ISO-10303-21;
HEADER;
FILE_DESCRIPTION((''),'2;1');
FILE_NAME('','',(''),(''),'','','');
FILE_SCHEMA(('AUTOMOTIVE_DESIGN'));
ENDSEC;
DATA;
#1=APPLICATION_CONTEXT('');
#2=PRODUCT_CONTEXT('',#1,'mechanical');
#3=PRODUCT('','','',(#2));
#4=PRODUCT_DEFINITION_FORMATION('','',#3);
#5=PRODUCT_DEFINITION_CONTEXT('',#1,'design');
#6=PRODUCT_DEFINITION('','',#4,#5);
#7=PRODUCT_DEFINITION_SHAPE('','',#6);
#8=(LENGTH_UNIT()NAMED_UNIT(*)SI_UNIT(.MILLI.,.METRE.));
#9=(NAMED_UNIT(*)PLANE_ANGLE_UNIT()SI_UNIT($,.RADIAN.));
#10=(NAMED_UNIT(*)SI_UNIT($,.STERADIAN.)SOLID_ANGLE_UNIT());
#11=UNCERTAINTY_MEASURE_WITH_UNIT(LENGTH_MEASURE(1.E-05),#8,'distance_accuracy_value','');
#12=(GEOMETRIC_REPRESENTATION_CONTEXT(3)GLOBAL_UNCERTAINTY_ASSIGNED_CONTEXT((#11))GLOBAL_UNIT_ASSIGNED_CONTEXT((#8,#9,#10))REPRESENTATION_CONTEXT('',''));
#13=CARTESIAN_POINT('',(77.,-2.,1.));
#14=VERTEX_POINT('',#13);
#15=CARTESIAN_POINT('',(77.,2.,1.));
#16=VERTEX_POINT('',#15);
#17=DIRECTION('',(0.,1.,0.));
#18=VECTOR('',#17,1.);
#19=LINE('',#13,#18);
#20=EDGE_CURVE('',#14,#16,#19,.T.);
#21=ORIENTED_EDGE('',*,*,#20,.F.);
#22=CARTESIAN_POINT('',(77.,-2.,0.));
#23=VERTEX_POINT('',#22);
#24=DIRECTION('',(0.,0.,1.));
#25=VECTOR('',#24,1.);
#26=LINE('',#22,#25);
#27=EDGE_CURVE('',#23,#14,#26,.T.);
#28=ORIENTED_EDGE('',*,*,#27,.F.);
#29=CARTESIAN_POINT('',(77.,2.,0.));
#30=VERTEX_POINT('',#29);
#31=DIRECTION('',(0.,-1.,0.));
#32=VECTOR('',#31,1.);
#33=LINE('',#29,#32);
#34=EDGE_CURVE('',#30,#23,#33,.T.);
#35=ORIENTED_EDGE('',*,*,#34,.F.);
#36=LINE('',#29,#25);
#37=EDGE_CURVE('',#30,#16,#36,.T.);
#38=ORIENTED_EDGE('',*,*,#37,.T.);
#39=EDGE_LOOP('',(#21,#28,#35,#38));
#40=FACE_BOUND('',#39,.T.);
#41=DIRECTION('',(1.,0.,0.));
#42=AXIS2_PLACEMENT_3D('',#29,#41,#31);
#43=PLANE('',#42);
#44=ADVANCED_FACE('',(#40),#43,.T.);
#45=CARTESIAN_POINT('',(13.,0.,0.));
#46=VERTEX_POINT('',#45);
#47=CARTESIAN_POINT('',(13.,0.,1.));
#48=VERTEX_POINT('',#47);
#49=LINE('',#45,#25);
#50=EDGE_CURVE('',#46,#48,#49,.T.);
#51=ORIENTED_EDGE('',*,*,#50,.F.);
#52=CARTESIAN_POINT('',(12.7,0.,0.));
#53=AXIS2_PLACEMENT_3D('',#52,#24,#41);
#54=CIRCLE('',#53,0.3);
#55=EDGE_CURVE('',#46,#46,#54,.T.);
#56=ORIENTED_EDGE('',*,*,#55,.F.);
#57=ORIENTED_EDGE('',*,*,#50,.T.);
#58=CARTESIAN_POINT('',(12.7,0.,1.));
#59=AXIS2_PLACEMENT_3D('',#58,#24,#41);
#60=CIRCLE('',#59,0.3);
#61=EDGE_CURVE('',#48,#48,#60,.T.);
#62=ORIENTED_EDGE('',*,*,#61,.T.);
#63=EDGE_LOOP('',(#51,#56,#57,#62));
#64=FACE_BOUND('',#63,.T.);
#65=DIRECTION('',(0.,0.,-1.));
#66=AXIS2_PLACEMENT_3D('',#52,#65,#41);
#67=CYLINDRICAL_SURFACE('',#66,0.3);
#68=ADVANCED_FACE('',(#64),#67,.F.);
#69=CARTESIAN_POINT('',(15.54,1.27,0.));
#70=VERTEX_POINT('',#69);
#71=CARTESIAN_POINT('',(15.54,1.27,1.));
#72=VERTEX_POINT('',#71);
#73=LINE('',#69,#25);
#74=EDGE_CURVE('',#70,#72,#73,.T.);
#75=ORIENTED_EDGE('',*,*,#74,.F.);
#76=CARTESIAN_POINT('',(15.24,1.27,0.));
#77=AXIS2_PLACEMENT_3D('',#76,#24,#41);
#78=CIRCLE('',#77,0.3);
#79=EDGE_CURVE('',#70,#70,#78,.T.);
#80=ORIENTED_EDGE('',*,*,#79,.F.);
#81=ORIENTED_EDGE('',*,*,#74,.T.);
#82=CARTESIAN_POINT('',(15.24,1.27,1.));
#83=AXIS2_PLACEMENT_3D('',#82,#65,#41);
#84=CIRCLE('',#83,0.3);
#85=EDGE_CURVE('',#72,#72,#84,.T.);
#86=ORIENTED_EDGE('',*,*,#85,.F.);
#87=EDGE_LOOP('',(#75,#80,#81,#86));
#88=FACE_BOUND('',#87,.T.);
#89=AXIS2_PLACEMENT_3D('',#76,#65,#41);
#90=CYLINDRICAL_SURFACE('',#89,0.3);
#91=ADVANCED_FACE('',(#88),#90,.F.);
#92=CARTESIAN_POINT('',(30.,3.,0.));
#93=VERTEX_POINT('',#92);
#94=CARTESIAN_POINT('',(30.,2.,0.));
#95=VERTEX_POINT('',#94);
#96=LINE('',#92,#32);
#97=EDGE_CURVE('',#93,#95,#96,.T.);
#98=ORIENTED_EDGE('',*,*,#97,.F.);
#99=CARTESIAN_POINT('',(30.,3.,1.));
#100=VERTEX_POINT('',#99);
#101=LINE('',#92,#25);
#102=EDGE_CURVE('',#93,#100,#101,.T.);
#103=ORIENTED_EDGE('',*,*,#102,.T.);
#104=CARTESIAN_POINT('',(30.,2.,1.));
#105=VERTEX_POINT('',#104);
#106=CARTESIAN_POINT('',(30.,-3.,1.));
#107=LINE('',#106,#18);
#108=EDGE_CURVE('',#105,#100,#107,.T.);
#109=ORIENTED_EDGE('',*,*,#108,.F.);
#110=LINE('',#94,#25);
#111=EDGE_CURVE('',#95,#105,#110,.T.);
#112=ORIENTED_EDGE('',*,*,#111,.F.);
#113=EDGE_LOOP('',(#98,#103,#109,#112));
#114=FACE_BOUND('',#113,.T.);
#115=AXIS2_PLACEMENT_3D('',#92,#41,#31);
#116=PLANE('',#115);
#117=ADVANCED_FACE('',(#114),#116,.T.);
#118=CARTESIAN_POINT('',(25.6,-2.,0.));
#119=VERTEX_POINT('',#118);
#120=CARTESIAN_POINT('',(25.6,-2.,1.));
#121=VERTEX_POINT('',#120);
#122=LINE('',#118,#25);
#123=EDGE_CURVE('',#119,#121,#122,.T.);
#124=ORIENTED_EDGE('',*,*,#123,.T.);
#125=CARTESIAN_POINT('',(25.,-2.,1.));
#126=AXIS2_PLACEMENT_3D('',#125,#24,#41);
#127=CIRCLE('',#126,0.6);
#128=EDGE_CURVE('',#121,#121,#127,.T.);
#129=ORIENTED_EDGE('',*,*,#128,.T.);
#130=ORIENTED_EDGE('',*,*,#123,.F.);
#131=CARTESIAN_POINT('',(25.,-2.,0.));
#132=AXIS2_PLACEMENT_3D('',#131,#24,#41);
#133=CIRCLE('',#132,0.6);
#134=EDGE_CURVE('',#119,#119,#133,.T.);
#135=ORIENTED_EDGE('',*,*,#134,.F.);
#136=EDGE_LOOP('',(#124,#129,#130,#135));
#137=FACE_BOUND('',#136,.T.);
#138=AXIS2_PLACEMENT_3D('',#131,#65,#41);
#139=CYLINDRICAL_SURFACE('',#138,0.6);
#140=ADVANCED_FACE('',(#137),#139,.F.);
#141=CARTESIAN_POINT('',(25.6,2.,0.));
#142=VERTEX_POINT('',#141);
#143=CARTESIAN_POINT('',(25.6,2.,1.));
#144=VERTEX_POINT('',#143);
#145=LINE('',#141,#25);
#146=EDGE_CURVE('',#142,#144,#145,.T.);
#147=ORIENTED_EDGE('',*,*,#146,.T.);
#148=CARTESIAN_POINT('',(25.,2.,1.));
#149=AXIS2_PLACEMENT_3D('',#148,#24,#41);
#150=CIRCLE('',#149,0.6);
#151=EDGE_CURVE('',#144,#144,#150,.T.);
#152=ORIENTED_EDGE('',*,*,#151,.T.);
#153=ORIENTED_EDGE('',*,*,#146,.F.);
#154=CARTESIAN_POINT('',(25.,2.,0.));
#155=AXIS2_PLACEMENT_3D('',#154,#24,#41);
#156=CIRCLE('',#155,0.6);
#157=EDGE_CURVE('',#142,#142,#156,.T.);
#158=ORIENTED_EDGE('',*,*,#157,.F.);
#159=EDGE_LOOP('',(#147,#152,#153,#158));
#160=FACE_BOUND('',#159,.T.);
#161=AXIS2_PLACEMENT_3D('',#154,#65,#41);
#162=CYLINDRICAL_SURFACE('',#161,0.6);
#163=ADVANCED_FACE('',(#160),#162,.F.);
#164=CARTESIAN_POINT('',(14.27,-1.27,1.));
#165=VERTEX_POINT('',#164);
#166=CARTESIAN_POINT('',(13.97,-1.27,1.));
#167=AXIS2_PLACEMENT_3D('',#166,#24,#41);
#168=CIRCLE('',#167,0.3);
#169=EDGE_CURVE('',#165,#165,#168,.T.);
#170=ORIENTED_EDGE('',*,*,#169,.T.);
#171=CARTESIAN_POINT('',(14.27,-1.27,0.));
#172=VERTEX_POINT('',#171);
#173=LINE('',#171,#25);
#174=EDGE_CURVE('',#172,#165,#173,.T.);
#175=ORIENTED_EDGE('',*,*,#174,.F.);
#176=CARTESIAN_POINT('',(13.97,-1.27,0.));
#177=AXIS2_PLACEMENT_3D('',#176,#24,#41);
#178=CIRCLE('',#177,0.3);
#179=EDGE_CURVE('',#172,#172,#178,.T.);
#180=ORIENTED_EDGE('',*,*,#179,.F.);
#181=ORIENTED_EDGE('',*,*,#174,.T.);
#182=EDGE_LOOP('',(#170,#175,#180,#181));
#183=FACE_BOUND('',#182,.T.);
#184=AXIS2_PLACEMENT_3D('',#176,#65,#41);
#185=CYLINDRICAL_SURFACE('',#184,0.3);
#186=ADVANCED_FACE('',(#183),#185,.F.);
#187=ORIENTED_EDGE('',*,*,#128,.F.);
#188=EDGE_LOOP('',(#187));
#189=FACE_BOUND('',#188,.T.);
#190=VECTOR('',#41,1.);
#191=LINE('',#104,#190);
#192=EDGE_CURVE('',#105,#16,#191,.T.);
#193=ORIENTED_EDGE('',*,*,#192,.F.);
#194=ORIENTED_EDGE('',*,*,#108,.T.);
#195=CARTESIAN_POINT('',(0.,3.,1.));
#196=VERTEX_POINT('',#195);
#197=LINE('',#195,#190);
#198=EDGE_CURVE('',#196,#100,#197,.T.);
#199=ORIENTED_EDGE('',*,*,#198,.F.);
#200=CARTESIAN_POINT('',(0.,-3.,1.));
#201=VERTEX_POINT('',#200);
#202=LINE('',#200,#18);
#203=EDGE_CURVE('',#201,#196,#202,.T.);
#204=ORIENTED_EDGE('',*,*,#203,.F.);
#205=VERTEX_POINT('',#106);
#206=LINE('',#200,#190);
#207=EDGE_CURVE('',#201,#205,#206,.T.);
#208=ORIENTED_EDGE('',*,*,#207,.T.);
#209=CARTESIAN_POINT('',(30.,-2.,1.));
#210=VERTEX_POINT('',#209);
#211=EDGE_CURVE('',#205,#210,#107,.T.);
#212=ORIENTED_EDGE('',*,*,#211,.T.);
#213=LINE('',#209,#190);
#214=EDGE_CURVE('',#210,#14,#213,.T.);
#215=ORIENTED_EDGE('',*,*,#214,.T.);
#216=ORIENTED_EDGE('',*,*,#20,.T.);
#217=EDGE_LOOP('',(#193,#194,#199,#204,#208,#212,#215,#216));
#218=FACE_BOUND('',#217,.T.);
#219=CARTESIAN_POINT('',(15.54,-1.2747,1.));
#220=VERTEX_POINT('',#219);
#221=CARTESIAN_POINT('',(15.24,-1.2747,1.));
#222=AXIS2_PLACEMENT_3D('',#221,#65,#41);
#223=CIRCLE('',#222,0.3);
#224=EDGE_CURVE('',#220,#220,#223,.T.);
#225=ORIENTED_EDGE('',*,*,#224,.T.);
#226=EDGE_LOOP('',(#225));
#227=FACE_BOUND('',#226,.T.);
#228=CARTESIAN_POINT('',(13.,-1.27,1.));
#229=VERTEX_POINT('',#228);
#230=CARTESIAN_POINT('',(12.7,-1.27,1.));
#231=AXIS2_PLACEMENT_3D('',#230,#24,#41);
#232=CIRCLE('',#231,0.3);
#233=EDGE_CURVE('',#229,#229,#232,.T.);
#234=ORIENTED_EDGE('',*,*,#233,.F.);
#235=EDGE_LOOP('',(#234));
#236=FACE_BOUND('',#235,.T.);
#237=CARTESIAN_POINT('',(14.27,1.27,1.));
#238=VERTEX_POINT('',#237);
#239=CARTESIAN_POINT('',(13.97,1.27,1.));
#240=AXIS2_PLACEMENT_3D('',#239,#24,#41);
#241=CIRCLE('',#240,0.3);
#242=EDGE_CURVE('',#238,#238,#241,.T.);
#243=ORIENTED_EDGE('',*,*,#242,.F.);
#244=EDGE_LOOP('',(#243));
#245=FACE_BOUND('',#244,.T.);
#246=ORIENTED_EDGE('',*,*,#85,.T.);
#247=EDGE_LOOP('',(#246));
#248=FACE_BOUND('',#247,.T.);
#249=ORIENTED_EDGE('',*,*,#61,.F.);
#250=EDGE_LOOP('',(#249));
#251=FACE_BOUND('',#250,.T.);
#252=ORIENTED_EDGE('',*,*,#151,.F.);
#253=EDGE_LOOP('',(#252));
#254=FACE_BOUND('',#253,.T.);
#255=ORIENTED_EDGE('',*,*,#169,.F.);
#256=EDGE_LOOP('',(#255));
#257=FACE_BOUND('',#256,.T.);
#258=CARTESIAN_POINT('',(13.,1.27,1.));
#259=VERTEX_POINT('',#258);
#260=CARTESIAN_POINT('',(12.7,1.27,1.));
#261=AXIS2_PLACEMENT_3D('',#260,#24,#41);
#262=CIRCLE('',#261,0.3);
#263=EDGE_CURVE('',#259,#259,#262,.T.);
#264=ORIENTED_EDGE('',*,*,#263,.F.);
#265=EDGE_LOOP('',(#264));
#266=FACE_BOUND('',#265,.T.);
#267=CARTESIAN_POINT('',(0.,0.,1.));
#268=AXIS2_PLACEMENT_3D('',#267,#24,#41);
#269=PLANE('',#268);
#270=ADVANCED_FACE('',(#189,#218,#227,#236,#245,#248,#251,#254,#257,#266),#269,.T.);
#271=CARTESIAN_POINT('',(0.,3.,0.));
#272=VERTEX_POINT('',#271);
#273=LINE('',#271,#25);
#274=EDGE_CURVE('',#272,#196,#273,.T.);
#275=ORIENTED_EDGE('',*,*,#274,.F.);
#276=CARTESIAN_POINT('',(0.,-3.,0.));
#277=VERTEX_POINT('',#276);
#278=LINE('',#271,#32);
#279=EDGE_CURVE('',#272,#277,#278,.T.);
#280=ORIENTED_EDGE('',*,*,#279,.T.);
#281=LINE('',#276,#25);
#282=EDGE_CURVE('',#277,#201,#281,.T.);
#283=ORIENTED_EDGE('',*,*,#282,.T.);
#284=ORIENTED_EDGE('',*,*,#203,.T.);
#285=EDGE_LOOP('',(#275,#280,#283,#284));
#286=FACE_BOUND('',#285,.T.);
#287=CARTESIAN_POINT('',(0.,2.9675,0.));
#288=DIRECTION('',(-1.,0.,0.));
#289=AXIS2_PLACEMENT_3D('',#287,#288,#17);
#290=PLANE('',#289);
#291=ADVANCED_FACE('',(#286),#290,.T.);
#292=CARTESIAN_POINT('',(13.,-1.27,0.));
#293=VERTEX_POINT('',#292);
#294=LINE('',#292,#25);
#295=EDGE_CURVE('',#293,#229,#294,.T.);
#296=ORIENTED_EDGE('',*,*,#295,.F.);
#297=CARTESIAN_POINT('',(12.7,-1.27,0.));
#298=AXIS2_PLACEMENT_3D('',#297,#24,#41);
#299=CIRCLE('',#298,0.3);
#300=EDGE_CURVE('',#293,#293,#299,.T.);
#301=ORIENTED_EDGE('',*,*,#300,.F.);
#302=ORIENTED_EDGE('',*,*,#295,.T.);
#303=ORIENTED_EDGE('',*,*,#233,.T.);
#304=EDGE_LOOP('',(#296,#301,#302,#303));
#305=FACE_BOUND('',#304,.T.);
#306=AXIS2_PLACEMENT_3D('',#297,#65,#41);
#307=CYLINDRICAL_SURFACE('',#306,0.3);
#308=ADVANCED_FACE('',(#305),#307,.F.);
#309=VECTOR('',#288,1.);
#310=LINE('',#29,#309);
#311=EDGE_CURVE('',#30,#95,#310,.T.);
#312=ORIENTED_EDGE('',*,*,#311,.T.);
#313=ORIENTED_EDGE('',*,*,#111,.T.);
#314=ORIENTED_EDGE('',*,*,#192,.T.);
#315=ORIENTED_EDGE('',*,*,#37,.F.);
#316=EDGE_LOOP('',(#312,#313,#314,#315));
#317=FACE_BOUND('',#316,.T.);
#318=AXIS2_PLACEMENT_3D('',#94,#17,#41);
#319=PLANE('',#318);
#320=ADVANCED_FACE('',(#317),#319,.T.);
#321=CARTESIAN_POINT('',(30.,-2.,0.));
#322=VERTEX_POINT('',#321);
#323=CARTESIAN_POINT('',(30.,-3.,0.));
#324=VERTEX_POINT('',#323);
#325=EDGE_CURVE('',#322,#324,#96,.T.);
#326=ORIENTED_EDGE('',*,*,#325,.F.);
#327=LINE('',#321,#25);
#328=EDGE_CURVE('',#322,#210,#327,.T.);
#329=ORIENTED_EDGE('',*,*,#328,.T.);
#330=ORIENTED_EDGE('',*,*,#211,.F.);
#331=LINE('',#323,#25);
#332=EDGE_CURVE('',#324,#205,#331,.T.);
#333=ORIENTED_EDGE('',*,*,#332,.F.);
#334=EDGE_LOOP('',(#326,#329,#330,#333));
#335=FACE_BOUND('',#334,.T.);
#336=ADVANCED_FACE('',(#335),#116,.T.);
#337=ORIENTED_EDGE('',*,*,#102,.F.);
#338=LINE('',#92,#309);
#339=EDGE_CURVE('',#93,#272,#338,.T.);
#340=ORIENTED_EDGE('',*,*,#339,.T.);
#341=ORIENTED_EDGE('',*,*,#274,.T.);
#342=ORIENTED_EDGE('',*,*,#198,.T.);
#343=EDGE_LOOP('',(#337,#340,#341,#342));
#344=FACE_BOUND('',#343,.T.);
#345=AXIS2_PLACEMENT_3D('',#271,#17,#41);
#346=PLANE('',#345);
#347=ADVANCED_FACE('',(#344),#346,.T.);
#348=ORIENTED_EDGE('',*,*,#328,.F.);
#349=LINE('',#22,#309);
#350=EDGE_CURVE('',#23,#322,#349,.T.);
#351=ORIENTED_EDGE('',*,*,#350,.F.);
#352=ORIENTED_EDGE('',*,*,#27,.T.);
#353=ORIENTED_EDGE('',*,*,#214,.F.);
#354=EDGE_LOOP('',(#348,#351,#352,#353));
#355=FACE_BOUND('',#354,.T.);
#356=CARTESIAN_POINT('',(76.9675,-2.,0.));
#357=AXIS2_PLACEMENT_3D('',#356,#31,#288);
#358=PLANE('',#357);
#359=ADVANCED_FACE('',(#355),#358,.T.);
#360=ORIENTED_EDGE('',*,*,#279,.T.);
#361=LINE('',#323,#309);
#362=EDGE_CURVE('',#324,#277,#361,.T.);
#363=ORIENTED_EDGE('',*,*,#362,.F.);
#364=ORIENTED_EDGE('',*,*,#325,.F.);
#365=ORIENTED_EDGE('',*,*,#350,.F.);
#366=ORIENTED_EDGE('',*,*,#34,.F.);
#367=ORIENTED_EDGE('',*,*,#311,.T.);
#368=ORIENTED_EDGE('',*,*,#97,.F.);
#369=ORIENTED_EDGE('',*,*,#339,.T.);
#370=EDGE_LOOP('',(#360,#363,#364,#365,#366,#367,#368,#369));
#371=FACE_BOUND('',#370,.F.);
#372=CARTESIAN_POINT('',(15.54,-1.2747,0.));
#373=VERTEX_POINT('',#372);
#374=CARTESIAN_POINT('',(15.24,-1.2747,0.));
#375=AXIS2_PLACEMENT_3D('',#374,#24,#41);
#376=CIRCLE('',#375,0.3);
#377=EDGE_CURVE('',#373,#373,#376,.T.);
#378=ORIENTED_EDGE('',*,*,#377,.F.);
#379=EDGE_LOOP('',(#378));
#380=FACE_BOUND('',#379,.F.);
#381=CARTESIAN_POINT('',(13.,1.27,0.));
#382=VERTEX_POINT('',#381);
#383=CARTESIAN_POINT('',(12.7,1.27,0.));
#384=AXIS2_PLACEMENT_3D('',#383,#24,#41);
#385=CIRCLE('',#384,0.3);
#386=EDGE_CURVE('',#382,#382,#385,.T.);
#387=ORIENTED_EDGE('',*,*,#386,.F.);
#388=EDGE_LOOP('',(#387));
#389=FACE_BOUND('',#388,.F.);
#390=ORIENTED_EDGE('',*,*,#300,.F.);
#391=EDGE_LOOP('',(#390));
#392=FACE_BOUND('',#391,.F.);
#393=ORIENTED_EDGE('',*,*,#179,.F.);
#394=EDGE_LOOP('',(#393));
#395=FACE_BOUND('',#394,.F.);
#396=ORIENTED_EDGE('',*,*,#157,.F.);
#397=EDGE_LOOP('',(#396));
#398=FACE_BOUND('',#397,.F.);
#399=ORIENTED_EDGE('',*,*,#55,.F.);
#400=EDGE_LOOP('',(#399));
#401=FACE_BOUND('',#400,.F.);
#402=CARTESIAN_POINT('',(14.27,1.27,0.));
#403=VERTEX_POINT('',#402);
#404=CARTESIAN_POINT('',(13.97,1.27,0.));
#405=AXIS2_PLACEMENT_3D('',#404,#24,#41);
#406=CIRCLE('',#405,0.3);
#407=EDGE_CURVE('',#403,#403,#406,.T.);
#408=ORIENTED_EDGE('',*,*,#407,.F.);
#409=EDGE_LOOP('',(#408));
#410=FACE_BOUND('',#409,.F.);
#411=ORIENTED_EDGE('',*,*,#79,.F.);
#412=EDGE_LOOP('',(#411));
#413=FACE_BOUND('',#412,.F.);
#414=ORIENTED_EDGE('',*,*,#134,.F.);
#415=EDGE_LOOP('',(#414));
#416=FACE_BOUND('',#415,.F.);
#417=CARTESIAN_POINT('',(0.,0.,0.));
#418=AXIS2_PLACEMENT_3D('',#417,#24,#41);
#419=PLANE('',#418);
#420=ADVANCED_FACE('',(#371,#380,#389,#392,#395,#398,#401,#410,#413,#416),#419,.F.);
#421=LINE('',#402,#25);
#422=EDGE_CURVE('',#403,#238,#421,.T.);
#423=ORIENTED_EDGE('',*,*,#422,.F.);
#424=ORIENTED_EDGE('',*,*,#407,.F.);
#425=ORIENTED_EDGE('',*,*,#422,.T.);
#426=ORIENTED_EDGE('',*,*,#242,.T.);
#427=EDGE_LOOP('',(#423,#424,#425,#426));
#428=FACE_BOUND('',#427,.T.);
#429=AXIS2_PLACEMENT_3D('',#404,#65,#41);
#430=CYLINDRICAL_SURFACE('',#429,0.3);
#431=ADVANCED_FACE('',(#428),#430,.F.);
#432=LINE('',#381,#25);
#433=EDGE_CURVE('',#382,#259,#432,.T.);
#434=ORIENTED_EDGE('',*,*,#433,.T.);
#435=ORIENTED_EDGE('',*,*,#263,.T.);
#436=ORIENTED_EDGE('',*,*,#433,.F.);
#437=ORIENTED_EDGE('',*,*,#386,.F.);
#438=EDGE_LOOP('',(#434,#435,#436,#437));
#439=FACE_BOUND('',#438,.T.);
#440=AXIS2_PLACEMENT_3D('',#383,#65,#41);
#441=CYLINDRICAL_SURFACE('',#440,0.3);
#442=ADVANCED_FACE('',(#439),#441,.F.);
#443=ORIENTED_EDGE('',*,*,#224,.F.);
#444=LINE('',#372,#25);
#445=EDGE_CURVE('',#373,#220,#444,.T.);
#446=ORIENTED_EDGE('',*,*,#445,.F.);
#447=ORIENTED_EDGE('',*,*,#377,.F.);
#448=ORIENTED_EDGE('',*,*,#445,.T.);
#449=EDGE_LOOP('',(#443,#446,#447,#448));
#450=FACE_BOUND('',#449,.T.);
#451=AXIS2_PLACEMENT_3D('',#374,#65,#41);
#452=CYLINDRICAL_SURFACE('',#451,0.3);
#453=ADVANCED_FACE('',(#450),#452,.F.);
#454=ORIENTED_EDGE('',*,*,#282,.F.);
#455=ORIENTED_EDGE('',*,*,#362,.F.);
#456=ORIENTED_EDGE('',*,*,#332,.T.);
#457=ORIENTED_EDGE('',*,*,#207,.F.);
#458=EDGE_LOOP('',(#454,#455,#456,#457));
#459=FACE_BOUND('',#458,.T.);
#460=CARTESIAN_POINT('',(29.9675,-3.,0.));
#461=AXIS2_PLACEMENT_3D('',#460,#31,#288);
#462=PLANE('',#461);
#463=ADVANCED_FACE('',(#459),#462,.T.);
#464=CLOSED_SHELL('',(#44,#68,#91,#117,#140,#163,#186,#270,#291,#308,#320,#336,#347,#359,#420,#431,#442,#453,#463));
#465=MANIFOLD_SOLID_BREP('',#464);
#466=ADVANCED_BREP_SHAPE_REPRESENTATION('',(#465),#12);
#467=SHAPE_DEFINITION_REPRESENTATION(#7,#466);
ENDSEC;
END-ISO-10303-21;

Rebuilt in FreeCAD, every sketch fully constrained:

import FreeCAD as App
import Part
import Sketcher

doc = App.newDocument("Part")
body = doc.addObject("PartDesign::Body", "Body")

# Sketch on XY plane
sketch1 = doc.addObject("Sketcher::SketchObject", "Sketch")
body.addObject(sketch1)
sketch1.AttachmentSupport = (doc.XY_Plane, [""])
sketch1.MapMode = "FlatFace"
sketch1.addGeometry([
    Part.LineSegment(App.Vector(0, 3, 0), App.Vector(0, -3, 0)),  # 0
    Part.LineSegment(App.Vector(0, -3, 0), App.Vector(30, -3, 0)),  # 1
    Part.LineSegment(App.Vector(30, -3, 0), App.Vector(30, 3, 0)),  # 2
    Part.LineSegment(App.Vector(30, 3, 0), App.Vector(0, 3, 0)),  # 3
    Part.Circle(App.Vector(25, 2, 0), App.Vector(0, 0, 1), 0.6),  # 4
    Part.Circle(App.Vector(25, -2, 0), App.Vector(0, 0, 1), 0.6),  # 5
    Part.Circle(App.Vector(12.7, -1.27, 0), App.Vector(0, 0, 1), 0.3),  # 6
    Part.Circle(App.Vector(13.97, -1.27, 0), App.Vector(0, 0, 1), 0.3),  # 7
    Part.Circle(App.Vector(12.7, 0, 0), App.Vector(0, 0, 1), 0.3),  # 8
    Part.Circle(App.Vector(12.7, 1.27, 0), App.Vector(0, 0, 1), 0.3),  # 9
    Part.Circle(App.Vector(13.97, 1.27, 0), App.Vector(0, 0, 1), 0.3),  # 10
], False)
sketch1.addConstraint([
    Sketcher.Constraint("Coincident", 0, 2, 1, 1),
    Sketcher.Constraint("Coincident", 1, 2, 2, 1),
    Sketcher.Constraint("Coincident", 2, 2, 3, 1),
    Sketcher.Constraint("Coincident", 3, 2, 0, 1),
    Sketcher.Constraint("Vertical", 0),
    Sketcher.Constraint("Horizontal", 1),
    Sketcher.Constraint("Vertical", 2),
    Sketcher.Constraint("Horizontal", 3),
    Sketcher.Constraint("Equal", 4, 5),
    Sketcher.Constraint("Equal", 6, 7),
    Sketcher.Constraint("Equal", 7, 8),
    Sketcher.Constraint("Equal", 8, 9),
    Sketcher.Constraint("Equal", 9, 10),
    Sketcher.Constraint("Symmetric", 0, 2, 3, 2, -1, 1),
    Sketcher.Constraint("Symmetric", 4, 3, 5, 3, -1),
    Sketcher.Constraint("Symmetric", 6, 3, 9, 3, -1),
    Sketcher.Constraint("Symmetric", 7, 3, 10, 3, -1),
    Sketcher.Constraint("PointOnObject", 8, 3, -1),
    Sketcher.Constraint("Horizontal", 6, 3, 7, 3),
    Sketcher.Constraint("Vertical", 6, 3, 8, 3),
    Sketcher.Constraint("Diameter", 4, 1.2),
    Sketcher.Constraint("Diameter", 6, 0.6),
    Sketcher.Constraint("DistanceX", 1, 1, 1, 2, 30.0),
    Sketcher.Constraint("DistanceY", 0, 2, 0, 1, 6.0),
    Sketcher.Constraint("DistanceX", -1, 1, 4, 3, 25.0),
    Sketcher.Constraint("DistanceY", -1, 1, 4, 3, 2.0),
    Sketcher.Constraint("DistanceX", -1, 1, 6, 3, 12.7),
    Sketcher.Constraint("DistanceY", 6, 3, -1, 1, 1.27),
    Sketcher.Constraint("DistanceX", -1, 1, 7, 3, 13.97),
])
pad1 = doc.addObject("PartDesign::Pad", "Pad")
body.addObject(pad1)
pad1.Profile = sketch1
pad1.Length = 1

# Sketch on XY plane
sketch2 = doc.addObject("Sketcher::SketchObject", "Sketch001")
body.addObject(sketch2)
sketch2.AttachmentSupport = (doc.XY_Plane, [""])
sketch2.MapMode = "FlatFace"
sketch2.addGeometry([
    Part.LineSegment(App.Vector(30, 2, 0), App.Vector(30, -2, 0)),
    Part.LineSegment(App.Vector(30, -2, 0), App.Vector(77, -2, 0)),
    Part.LineSegment(App.Vector(77, -2, 0), App.Vector(77, 2, 0)),
    Part.LineSegment(App.Vector(77, 2, 0), App.Vector(30, 2, 0)),
], False)
sketch2.addConstraint([
    Sketcher.Constraint("Coincident", 0, 2, 1, 1),
    Sketcher.Constraint("Coincident", 1, 2, 2, 1),
    Sketcher.Constraint("Coincident", 2, 2, 3, 1),
    Sketcher.Constraint("Coincident", 3, 2, 0, 1),
    Sketcher.Constraint("Vertical", 0),
    Sketcher.Constraint("Horizontal", 1),
    Sketcher.Constraint("Vertical", 2),
    Sketcher.Constraint("Horizontal", 3),
    Sketcher.Constraint("DistanceX", 1, 1, 1, 2, 47.0),
    Sketcher.Constraint("DistanceY", 0, 2, 0, 1, 4.0),
    Sketcher.Constraint("DistanceX", -1, 1, 0, 2, 30.0),
    Sketcher.Constraint("DistanceY", 0, 2, -1, 1, 2.0),
])
pad2 = doc.addObject("PartDesign::Pad", "Pad001")
body.addObject(pad2)
pad2.Profile = sketch2
pad2.Length = 1

# Sketch on XY plane
sketch3 = doc.addObject("Sketcher::SketchObject", "Sketch002")
body.addObject(sketch3)
sketch3.AttachmentSupport = (doc.XY_Plane, [""])
sketch3.MapMode = "FlatFace"
sketch3.addGeometry([
    Part.Circle(App.Vector(15.24, 1.27, 0), App.Vector(0, 0, 1), 0.3),
    Part.Circle(App.Vector(15.24, -1.2747, 0), App.Vector(0, 0, 1), 0.3),
], False)
sketch3.addConstraint([
    Sketcher.Constraint("Equal", 0, 1),
    Sketcher.Constraint("Vertical", 0, 3, 1, 3),
    Sketcher.Constraint("Diameter", 0, 0.6),
    Sketcher.Constraint("DistanceX", -1, 1, 0, 3, 15.24),
    Sketcher.Constraint("DistanceY", -1, 1, 0, 3, 1.27),
    Sketcher.Constraint("DistanceY", 1, 3, -1, 1, 1.2747),
])
pocket1 = doc.addObject("PartDesign::Pocket", "Pocket")
body.addObject(pocket1)
pocket1.Profile = sketch3
pocket1.Length = 10
pocket1.Reversed = True

doc.recompute()
